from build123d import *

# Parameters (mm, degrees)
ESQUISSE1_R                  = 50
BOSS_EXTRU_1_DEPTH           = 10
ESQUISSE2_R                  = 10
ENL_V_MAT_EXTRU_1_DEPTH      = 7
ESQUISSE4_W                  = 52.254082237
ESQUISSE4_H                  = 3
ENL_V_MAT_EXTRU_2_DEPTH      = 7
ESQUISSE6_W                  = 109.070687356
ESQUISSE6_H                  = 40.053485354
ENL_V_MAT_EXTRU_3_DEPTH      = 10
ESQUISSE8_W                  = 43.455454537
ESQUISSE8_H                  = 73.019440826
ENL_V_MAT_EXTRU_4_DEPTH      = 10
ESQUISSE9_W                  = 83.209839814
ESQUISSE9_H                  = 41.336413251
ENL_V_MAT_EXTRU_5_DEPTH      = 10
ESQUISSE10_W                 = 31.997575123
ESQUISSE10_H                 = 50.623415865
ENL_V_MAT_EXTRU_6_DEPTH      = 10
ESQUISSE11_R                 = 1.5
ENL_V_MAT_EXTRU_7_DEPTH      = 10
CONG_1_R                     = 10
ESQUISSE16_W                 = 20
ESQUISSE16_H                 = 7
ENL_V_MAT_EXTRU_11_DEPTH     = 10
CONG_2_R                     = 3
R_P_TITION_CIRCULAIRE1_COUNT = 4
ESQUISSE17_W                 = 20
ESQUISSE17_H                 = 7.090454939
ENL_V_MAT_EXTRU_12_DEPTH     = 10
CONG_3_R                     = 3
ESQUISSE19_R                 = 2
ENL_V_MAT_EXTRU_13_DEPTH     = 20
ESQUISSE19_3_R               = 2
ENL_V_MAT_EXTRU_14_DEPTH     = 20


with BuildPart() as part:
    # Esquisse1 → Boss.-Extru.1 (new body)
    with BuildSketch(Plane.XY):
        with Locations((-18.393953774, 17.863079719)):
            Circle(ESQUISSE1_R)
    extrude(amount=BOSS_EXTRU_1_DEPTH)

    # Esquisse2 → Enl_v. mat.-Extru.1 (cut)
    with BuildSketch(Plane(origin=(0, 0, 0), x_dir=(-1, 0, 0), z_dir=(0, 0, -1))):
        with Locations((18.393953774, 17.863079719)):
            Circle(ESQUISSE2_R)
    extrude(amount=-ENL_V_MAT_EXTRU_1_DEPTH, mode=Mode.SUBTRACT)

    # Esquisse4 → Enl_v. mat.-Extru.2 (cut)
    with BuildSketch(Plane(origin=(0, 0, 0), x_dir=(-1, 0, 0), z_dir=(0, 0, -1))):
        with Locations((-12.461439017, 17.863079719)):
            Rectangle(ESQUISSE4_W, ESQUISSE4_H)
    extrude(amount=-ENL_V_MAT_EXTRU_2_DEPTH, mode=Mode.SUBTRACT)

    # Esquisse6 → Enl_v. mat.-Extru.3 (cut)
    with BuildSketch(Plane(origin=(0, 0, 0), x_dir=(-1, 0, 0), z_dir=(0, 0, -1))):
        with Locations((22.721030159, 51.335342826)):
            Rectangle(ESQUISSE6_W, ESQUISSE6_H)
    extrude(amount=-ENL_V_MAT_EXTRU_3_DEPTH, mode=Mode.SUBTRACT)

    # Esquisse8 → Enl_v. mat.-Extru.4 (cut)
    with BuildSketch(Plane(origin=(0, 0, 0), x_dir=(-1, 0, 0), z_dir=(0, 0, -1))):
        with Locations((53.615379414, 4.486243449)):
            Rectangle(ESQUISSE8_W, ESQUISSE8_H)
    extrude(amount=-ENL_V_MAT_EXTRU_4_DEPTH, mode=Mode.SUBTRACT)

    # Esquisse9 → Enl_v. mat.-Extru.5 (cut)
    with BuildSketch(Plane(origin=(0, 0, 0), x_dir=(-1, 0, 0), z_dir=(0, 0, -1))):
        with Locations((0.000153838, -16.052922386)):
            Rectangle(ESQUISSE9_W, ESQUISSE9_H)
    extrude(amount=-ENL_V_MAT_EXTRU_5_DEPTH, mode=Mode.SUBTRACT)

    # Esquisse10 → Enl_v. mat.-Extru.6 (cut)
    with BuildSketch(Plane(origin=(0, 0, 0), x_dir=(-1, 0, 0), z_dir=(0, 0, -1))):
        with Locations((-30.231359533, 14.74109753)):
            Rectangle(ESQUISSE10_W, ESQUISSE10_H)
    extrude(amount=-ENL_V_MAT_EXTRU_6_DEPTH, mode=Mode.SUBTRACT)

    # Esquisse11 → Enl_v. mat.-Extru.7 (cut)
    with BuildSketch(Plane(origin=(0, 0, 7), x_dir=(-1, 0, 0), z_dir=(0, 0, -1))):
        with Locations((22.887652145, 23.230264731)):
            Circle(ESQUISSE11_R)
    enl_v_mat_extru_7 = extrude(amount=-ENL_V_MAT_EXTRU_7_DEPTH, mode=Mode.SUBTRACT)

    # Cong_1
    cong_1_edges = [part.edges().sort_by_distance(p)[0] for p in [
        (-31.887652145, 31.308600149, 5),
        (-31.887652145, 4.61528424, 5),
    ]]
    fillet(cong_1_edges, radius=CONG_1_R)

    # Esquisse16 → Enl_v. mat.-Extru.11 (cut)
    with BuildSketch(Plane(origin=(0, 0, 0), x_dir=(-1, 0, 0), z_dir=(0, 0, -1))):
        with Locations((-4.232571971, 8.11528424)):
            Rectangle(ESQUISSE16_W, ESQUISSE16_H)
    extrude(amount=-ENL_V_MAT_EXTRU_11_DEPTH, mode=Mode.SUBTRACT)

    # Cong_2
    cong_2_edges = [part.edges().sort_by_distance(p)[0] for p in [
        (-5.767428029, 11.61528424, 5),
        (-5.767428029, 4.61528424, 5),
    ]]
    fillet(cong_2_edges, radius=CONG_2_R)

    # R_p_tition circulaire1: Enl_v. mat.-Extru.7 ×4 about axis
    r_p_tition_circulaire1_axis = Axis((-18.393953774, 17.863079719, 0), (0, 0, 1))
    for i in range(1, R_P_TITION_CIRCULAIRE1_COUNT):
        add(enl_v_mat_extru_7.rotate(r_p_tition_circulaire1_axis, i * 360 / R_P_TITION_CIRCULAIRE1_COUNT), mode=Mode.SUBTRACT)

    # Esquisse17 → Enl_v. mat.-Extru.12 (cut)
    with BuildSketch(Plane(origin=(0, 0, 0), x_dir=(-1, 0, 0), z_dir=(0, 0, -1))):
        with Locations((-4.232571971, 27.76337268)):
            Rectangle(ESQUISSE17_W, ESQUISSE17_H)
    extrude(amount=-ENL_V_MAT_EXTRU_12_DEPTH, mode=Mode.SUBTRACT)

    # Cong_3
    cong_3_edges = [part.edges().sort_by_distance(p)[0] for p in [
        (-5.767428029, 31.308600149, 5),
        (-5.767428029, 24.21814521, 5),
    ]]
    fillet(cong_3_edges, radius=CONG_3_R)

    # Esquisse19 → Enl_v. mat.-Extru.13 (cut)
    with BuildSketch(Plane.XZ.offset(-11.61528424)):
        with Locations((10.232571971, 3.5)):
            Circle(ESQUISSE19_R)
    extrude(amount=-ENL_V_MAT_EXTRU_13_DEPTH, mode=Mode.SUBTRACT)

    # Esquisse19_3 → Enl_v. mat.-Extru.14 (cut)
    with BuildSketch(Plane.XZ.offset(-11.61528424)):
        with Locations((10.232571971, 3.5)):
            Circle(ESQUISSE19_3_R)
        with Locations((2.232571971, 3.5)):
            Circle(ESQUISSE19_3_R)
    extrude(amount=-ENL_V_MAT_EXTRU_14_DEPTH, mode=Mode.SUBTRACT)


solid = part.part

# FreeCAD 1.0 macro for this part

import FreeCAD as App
import Part
import Sketcher
from FreeCAD import Vector


def edges_at(feature, points):
    """Names of the edges that pass closest to the given points."""
    edges = feature.Shape.Edges
    near = lambda p: min(range(len(edges)), key=lambda i: edges[i].distToShape(Part.Vertex(*p))[0])
    return sorted({f"Edge{near(p) + 1}" for p in points})


def add_polygon(sketch, points):
    """Adds a closed chain of lines whose ends are joined by coincident constraints."""
    first, n = sketch.GeometryCount, len(points)
    for a, b in zip(points, points[1:] + points[:1]):
        sketch.addGeometry(Part.LineSegment(App.Vector(*a, 0), App.Vector(*b, 0)), False)
    for i in range(n):
        sketch.addConstraint(Sketcher.Constraint("Coincident", first + i, 2, first + (i + 1) % n, 1))

doc = App.newDocument("Part")
body = doc.addObject("PartDesign::Body", "Body")

sketch1 = body.newObject("Sketcher::SketchObject", "Sketch")
sketch1.AttachmentSupport = (doc.getObject("XY_Plane"), [""])
sketch1.MapMode = "FlatFace"
sketch1.addGeometry(Part.Circle(Vector(-18, 18, 0), Vector(0, 0, 1), 50), False)
sketch1.addConstraint(Sketcher.Constraint("Diameter", 0, 100.0))
sketch1.addConstraint(Sketcher.Constraint("DistanceY", -1, 1, 0, 3, 17.86308))
sketch1.addConstraint(Sketcher.Constraint("DistanceX", 0, 3, -1, 1, 18.393954))
pad1 = body.newObject("PartDesign::Pad", "Pad")
pad1.Profile = sketch1
pad1.Length = 10

sketch2 = body.newObject("Sketcher::SketchObject", "Sketch001")
sketch2.AttachmentSupport = (doc.getObject("XY_Plane"), [""])
sketch2.MapMode = "FlatFace"
sketch2.addGeometry(Part.Circle(Vector(-18, 18, 0), Vector(0, 0, 1), 10), False)
sketch2.addConstraint(Sketcher.Constraint("Diameter", 0, 20.0))
sketch2.addConstraint(Sketcher.Constraint("DistanceY", -1, 1, 0, 3, 17.86308))
sketch2.addConstraint(Sketcher.Constraint("DistanceX", 0, 3, -1, 1, 18.393954))
pocket1 = body.newObject("PartDesign::Pocket", "Pocket")
pocket1.Profile = sketch2
pocket1.Length = 7
pocket1.Reversed = True

sketch3 = body.newObject("Sketcher::SketchObject", "Sketch002")
sketch3.AttachmentSupport = (doc.getObject("XY_Plane"), [""])
sketch3.MapMode = "FlatFace"
add_polygon(sketch3, [(38.6, 19.4), (38.6, 16.4), (-13.7, 16.4), (-13.7, 19.4)])
sketch3.addConstraint(Sketcher.Constraint("Vertical", 0))
sketch3.addConstraint(Sketcher.Constraint("Horizontal", 1))
sketch3.addConstraint(Sketcher.Constraint("Vertical", 2))
sketch3.addConstraint(Sketcher.Constraint("Horizontal", 3))
sketch3.addConstraint(Sketcher.Constraint("DistanceY", 0, 2, 0, 1, 3.0))
sketch3.addConstraint(Sketcher.Constraint("DistanceX", 1, 2, 1, 1, 52.254082))
sketch3.addConstraint(Sketcher.Constraint("DistanceX", -1, 1, 0, 2, 38.58848))
sketch3.addConstraint(Sketcher.Constraint("DistanceY", -1, 1, 0, 2, 16.36308))
pocket2 = body.newObject("PartDesign::Pocket", "Pocket001")
pocket2.Profile = sketch3
pocket2.Length = 7
pocket2.Reversed = True

sketch4 = body.newObject("Sketcher::SketchObject", "Sketch003")
sketch4.AttachmentSupport = (doc.getObject("XY_Plane"), [""])
sketch4.MapMode = "FlatFace"
add_polygon(sketch4, [(32, 71), (32, 31), (-77, 31), (-77, 71)])
sketch4.addConstraint(Sketcher.Constraint("Vertical", 0))
sketch4.addConstraint(Sketcher.Constraint("Horizontal", 1))
sketch4.addConstraint(Sketcher.Constraint("Vertical", 2))
sketch4.addConstraint(Sketcher.Constraint("Horizontal", 3))
sketch4.addConstraint(Sketcher.Constraint("DistanceY", -1, 1, 0, 2, 31.3086))
sketch4.addConstraint(Sketcher.Constraint("DistanceX", 1, 2, 1, 1, 109.070687))
sketch4.addConstraint(Sketcher.Constraint("DistanceY", 0, 2, 0, 1, 40.053485))
sketch4.addConstraint(Sketcher.Constraint("DistanceX", -1, 1, 0, 2, 31.814314))
pocket3 = body.newObject("PartDesign::Pocket", "Pocket002")
pocket3.Profile = sketch4
pocket3.Length = 10
pocket3.Reversed = True

sketch5 = body.newObject("Sketcher::SketchObject", "Sketch004")
sketch5.AttachmentSupport = (doc.getObject("XY_Plane"), [""])
sketch5.MapMode = "FlatFace"
add_polygon(sketch5, [(-32, 41), (-32, -32), (-75, -32), (-75, 41)])
sketch5.addConstraint(Sketcher.Constraint("Vertical", 0))
sketch5.addConstraint(Sketcher.Constraint("Horizontal", 1))
sketch5.addConstraint(Sketcher.Constraint("Vertical", 2))
sketch5.addConstraint(Sketcher.Constraint("Horizontal", 3))
sketch5.addConstraint(Sketcher.Constraint("DistanceY", 0, 2, 0, 1, 73.019441))
sketch5.addConstraint(Sketcher.Constraint("DistanceX", 1, 2, 1, 1, 43.455455))
sketch5.addConstraint(Sketcher.Constraint("DistanceX", 0, 2, -1, 1, 31.887652))
sketch5.addConstraint(Sketcher.Constraint("DistanceY", 0, 2, -1, 1, 32.023477))
pocket4 = body.newObject("PartDesign::Pocket", "Pocket003")
pocket4.Profile = sketch5
pocket4.Length = 10
pocket4.Reversed = True

sketch6 = body.newObject("Sketcher::SketchObject", "Sketch005")
sketch6.AttachmentSupport = (doc.getObject("XY_Plane"), [""])
sketch6.MapMode = "FlatFace"
add_polygon(sketch6, [(42, 5), (42, -37), (-42, -37), (-42, 5)])
sketch6.addConstraint(Sketcher.Constraint("Vertical", 0))
sketch6.addConstraint(Sketcher.Constraint("Horizontal", 1))
sketch6.addConstraint(Sketcher.Constraint("Vertical", 2))
sketch6.addConstraint(Sketcher.Constraint("Horizontal", 3))
sketch6.addConstraint(Sketcher.Constraint("DistanceX", 1, 2, 1, 1, 83.20984))
sketch6.addConstraint(Sketcher.Constraint("DistanceY", 0, 2, 0, 1, 41.336413))
sketch6.addConstraint(Sketcher.Constraint("DistanceY", 0, 2, -1, 1, 36.721129))
sketch6.addConstraint(Sketcher.Constraint("DistanceX", -1, 1, 0, 2, 41.604766))
pocket5 = body.newObject("PartDesign::Pocket", "Pocket004")
pocket5.Profile = sketch6
pocket5.Length = 10
pocket5.Reversed = True

sketch7 = body.newObject("Sketcher::SketchObject", "Sketch006")
sketch7.AttachmentSupport = (doc.getObject("XY_Plane"), [""])
sketch7.MapMode = "FlatFace"
add_polygon(sketch7, [(46, 40), (46, -11), (14, -11), (14, 40)])
sketch7.addConstraint(Sketcher.Constraint("Vertical", 0))
sketch7.addConstraint(Sketcher.Constraint("Horizontal", 1))
sketch7.addConstraint(Sketcher.Constraint("Vertical", 2))
sketch7.addConstraint(Sketcher.Constraint("Horizontal", 3))
sketch7.addConstraint(Sketcher.Constraint("DistanceX", 1, 2, 1, 1, 31.997575))
sketch7.addConstraint(Sketcher.Constraint("DistanceY", 0, 2, 0, 1, 50.623416))
sketch7.addConstraint(Sketcher.Constraint("DistanceY", 0, 2, -1, 1, 10.57061))
sketch7.addConstraint(Sketcher.Constraint("DistanceX", -1, 1, 1, 2, 14.232572))
pocket6 = body.newObject("PartDesign::Pocket", "Pocket005")
pocket6.Profile = sketch7
pocket6.Length = 10
pocket6.Reversed = True

sketch8 = body.newObject("Sketcher::SketchObject", "Sketch007")
sketch8.AttachmentSupport = (doc.getObject("XY_Plane"), [""])
sketch8.MapMode = "FlatFace"
sketch8.AttachmentOffset = App.Placement(Vector(0, 0, 7), App.Rotation())
sketch8.addGeometry(Part.Circle(Vector(-22.9, 23.2, 0), Vector(0, 0, 1), 1.5), False)
sketch8.addConstraint(Sketcher.Constraint("Diameter", 0, 3.0))
sketch8.addConstraint(Sketcher.Constraint("DistanceX", 0, 3, -1, 1, 22.887652))
sketch8.addConstraint(Sketcher.Constraint("DistanceY", -1, 1, 0, 3, 23.230265))
pocket7 = body.newObject("PartDesign::Pocket", "Pocket006")
pocket7.Profile = sketch8
pocket7.Length = 10
pocket7.Reversed = True
doc.recompute()

fillet = body.newObject("PartDesign::Fillet", "Fillet")
fillet.Base = (pocket7, edges_at(pocket7, [(-31.888, 31.309, 5), (-31.888, 4.615, 5)]))
fillet.Radius = 10

sketch9 = body.newObject("Sketcher::SketchObject", "Sketch008")
sketch9.AttachmentSupport = (doc.getObject("XY_Plane"), [""])
sketch9.MapMode = "FlatFace"
add_polygon(sketch9, [(14, 12), (14, 5), (-6, 5), (-6, 12)])
sketch9.addConstraint(Sketcher.Constraint("Vertical", 0))
sketch9.addConstraint(Sketcher.Constraint("Horizontal", 1))
sketch9.addConstraint(Sketcher.Constraint("Vertical", 2))
sketch9.addConstraint(Sketcher.Constraint("Horizontal", 3))
sketch9.addConstraint(Sketcher.Constraint("DistanceX", 1, 2, 1, 1, 20.0))
sketch9.addConstraint(Sketcher.Constraint("DistanceY", 0, 2, 0, 1, 7.0))
sketch9.addConstraint(Sketcher.Constraint("DistanceX", -1, 1, 0, 2, 14.232572))
sketch9.addConstraint(Sketcher.Constraint("DistanceY", -1, 1, 0, 2, 4.615284))
pocket8 = body.newObject("PartDesign::Pocket", "Pocket007")
pocket8.Profile = sketch9
pocket8.Length = 10
pocket8.Reversed = True
doc.recompute()

fillet2 = body.newObject("PartDesign::Fillet", "Fillet001")
fillet2.Base = (pocket8, edges_at(pocket8, [(-5.767, 11.615, 5), (-5.767, 4.615, 5)]))
fillet2.Radius = 3
doc.recompute()

datumline = body.newObject("PartDesign::Line", "DatumLine")
datumline.Placement = App.Placement(Vector(-18.393954, 17.86308, 0), App.Rotation(Vector(0, 0, 1), Vector(0, 0, 1)))
polarpattern = body.newObject("PartDesign::PolarPattern", "PolarPattern")
polarpattern.Originals = [pocket7]
polarpattern.Axis = (datumline, [""])
polarpattern.Angle = 360
polarpattern.Occurrences = 4
body.Tip = polarpattern

sketch10 = body.newObject("Sketcher::SketchObject", "Sketch009")
sketch10.AttachmentSupport = (doc.getObject("XY_Plane"), [""])
sketch10.MapMode = "FlatFace"
add_polygon(sketch10, [(14, 31), (14, 24), (-6, 24), (-6, 31)])
sketch10.addConstraint(Sketcher.Constraint("Vertical", 0))
sketch10.addConstraint(Sketcher.Constraint("Horizontal", 1))
sketch10.addConstraint(Sketcher.Constraint("Vertical", 2))
sketch10.addConstraint(Sketcher.Constraint("Horizontal", 3))
sketch10.addConstraint(Sketcher.Constraint("DistanceX", 1, 2, 1, 1, 20.0))
sketch10.addConstraint(Sketcher.Constraint("DistanceY", -1, 1, 2, 2, 31.3086))
sketch10.addConstraint(Sketcher.Constraint("DistanceY", 0, 2, 0, 1, 7.090455))
sketch10.addConstraint(Sketcher.Constraint("DistanceX", -1, 1, 0, 2, 14.232572))
pocket9 = body.newObject("PartDesign::Pocket", "Pocket008")
pocket9.Profile = sketch10
pocket9.Length = 10
pocket9.Reversed = True
doc.recompute()

fillet3 = body.newObject("PartDesign::Fillet", "Fillet002")
fillet3.Base = (pocket9, edges_at(pocket9, [(-5.767, 31.309, 5), (-5.767, 24.218, 5)]))
fillet3.Radius = 3

sketch11 = body.newObject("Sketcher::SketchObject", "Sketch010")
sketch11.AttachmentSupport = (doc.getObject("XZ_Plane"), [""])
sketch11.MapMode = "FlatFace"
sketch11.AttachmentOffset = App.Placement(Vector(0, 0, -11.615284), App.Rotation())
sketch11.addGeometry(Part.Circle(Vector(10.2, 3.5, 0), Vector(0, 0, 1), 2), False)
sketch11.addConstraint(Sketcher.Constraint("Diameter", 0, 4.0))
sketch11.addConstraint(Sketcher.Constraint("DistanceY", -1, 1, 0, 3, 3.5))
sketch11.addConstraint(Sketcher.Constraint("DistanceX", -1, 1, 0, 3, 10.232572))
pocket10 = body.newObject("PartDesign::Pocket", "Pocket009")
pocket10.Profile = sketch11
pocket10.Length = 20

sketch12 = body.newObject("Sketcher::SketchObject", "Sketch011")
sketch12.AttachmentSupport = (doc.getObject("XZ_Plane"), [""])
sketch12.MapMode = "FlatFace"
sketch12.AttachmentOffset = App.Placement(Vector(0, 0, -11.615284), App.Rotation())
sketch12.addGeometry(Part.Circle(Vector(10.2, 3.5, 0), Vector(0, 0, 1), 2), False)
sketch12.addGeometry(Part.Circle(Vector(2.2, 3.5, 0), Vector(0, 0, 1), 2), False)
sketch12.addConstraint(Sketcher.Constraint("Equal", 0, 1))
sketch12.addConstraint(Sketcher.Constraint("Horizontal", 0, 3, 1, 3))
sketch12.addConstraint(Sketcher.Constraint("Diameter", 0, 4.0))
sketch12.addConstraint(Sketcher.Constraint("DistanceX", 1, 3, 0, 3, 8.0))
sketch12.addConstraint(Sketcher.Constraint("DistanceY", -1, 1, 0, 3, 3.5))
sketch12.addConstraint(Sketcher.Constraint("DistanceX", -1, 1, 0, 3, 10.232572))
pocket11 = body.newObject("PartDesign::Pocket", "Pocket010")
pocket11.Profile = sketch12
pocket11.Length = 20

doc.recompute()
